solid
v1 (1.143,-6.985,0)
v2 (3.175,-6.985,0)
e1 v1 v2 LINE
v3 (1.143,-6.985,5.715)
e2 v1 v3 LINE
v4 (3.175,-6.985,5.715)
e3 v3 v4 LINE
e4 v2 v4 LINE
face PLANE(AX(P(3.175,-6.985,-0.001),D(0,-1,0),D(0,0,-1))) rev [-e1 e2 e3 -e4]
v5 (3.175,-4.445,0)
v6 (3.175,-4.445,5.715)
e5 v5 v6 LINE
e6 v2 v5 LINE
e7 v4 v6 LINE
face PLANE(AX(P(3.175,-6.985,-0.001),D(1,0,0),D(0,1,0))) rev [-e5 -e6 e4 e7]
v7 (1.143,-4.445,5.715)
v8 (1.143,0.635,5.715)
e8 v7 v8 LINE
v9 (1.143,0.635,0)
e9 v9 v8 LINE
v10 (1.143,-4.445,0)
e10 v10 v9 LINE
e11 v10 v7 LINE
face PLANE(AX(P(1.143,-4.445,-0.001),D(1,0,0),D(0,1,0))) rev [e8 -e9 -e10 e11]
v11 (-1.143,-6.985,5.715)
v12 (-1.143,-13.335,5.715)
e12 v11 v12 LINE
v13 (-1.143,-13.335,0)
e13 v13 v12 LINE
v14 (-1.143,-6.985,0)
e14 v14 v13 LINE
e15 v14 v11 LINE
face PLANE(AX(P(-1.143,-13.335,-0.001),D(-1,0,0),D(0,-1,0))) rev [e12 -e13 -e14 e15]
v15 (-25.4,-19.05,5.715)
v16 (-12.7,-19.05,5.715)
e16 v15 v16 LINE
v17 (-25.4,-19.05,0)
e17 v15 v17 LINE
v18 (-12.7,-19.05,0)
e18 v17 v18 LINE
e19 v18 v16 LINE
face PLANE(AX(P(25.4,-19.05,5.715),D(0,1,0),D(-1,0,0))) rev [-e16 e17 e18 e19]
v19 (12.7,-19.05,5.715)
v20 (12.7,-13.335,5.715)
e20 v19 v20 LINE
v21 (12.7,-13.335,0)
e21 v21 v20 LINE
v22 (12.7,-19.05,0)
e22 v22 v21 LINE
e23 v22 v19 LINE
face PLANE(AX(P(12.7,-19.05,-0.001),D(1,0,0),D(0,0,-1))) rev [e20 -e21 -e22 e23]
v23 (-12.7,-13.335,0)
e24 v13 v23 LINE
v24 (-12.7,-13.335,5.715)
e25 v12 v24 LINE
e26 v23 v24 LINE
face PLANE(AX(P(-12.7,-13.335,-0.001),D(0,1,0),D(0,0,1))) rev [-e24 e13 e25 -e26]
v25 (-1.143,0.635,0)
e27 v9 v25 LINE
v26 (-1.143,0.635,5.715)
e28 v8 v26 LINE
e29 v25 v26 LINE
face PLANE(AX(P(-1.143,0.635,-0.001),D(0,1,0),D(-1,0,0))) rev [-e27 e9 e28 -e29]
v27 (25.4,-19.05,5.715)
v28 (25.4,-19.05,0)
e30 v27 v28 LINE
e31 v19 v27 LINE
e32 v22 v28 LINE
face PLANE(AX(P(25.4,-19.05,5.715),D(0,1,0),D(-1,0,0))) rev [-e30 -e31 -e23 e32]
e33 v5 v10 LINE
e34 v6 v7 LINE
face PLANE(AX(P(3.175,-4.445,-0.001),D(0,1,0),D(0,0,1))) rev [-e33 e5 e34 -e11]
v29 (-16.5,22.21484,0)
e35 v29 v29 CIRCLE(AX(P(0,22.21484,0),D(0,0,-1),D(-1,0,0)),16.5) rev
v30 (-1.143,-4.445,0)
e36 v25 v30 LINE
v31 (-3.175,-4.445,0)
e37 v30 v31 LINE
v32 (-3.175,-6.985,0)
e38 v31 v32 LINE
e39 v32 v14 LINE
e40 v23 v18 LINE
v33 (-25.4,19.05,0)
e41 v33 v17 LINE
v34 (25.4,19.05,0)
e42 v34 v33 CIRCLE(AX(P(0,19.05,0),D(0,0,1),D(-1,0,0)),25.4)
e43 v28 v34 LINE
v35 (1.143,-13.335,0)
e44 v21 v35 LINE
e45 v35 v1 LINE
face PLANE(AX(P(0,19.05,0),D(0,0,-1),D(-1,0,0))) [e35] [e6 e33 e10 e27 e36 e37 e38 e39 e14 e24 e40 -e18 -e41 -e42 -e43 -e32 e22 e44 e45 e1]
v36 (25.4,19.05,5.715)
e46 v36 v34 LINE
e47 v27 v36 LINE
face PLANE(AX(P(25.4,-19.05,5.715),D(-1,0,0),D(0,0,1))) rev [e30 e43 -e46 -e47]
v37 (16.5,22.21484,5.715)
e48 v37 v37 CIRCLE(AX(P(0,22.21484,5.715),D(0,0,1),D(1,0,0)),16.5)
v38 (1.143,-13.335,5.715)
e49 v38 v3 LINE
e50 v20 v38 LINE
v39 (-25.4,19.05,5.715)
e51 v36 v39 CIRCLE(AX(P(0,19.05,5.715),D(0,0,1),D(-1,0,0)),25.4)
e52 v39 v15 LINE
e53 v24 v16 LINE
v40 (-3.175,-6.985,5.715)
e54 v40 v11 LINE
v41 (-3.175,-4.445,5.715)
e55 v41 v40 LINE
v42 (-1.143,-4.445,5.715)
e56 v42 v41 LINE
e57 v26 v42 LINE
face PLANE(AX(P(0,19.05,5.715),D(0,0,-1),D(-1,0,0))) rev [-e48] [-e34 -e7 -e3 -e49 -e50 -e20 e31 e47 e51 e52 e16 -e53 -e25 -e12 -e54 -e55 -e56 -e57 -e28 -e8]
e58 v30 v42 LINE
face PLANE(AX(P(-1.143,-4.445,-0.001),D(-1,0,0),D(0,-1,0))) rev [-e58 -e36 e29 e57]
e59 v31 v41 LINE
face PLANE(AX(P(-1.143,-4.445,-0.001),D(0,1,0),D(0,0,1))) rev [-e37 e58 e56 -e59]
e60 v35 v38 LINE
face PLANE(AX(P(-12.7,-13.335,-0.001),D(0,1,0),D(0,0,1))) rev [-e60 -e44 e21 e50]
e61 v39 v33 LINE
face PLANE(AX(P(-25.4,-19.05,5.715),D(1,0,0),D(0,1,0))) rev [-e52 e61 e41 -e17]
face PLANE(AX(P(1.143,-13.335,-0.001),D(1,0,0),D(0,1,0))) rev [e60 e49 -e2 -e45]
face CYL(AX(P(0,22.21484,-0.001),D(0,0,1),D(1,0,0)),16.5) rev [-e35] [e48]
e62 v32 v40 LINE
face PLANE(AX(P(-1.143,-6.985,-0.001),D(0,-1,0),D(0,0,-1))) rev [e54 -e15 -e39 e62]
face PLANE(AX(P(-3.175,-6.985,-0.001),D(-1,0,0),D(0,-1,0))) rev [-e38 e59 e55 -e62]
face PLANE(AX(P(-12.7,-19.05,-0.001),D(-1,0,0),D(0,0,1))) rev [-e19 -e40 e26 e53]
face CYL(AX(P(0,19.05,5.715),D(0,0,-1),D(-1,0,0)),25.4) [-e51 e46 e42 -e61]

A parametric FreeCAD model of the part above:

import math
import FreeCAD as App
import Part
import Sketcher
from FreeCAD import Vector
Q = App.Units.Quantity

doc = App.newDocument("Part")
params = doc.addObject("Spreadsheet::Sheet", "Params")
for row, (alias, value) in enumerate([
    ("sketch1_radius", "1 in"),
    ("sketch1_height", "1.5 in"),
    ("pad1_length", "0.225 in"),
    ("sketch3_width", "1 in"),
    ("sketch3_height", "0.225 in"),
    ("sketch4_height", "0.1 in"),
    ("sketch4_height2", "0.2 in"),
    ("sketch4_width", "0.08 in"),
    ("sketch4_width2", "0.09 in"),
    ("sketch4_height3", "0.25 in"),
], start=1):
    params.set(f"A{row}", alias)
    params.set(f"B{row}", "=" + value)
    params.setAlias(f"B{row}", alias)

body = doc.addObject("PartDesign::Body", "Body")

# Sketch on XY plane
sketch1 = body.newObject("Sketcher::SketchObject", "Sketch")
sketch1.AttachmentSupport = (doc.getObject("XY_Plane"), [""])
sketch1.MapMode = "FlatFace"
sketch1.addGeometry(Part.LineSegment(Vector(-25, -19, 0), Vector(25, -19, 0)), False)
sketch1.addGeometry(Part.LineSegment(Vector(25, -19, 0), Vector(25, 19, 0)), False)
sketch1.addGeometry(Part.ArcOfCircle(Part.Circle(Vector(0, 19, 0), Vector(0, 0, 1), 25), math.radians(0), math.radians(180)), False)
sketch1.addGeometry(Part.LineSegment(Vector(-25, 19, 0), Vector(-25, -19, 0)), False)
sketch1.addConstraint(Sketcher.Constraint("Coincident", 0, 2, 1, 1))
sketch1.addConstraint(Sketcher.Constraint("Tangent", 1, 2, 2, 1))
sketch1.addConstraint(Sketcher.Constraint("Tangent", 2, 2, 3, 1))
sketch1.addConstraint(Sketcher.Constraint("Coincident", 3, 2, 0, 1))
sketch1.addConstraint(Sketcher.Constraint("Horizontal", 0))
sketch1.addConstraint(Sketcher.Constraint("Vertical", 1))
sketch1.addConstraint(Sketcher.Constraint("Vertical", 3))
sketch1.addConstraint(Sketcher.Constraint("Symmetric", 0, 2, 2, 2, -1, 1))
sketch1.addConstraint(Sketcher.Constraint("Radius", 2, Q("1 in")))
sketch1.addConstraint(Sketcher.Constraint("DistanceY", 1, 1, 1, 2, Q("1.5 in")))
sketch1.setExpression("Constraints[8]", "Params.sketch1_radius")
sketch1.setExpression("Constraints[9]", "Params.sketch1_height")
pad1 = body.newObject("PartDesign::Pad", "Pad")
pad1.Profile = sketch1
pad1.setExpression("Length", "Params.pad1_length")

# Sketch on XY plane
sketch2 = body.newObject("Sketcher::SketchObject", "Sketch001")
sketch2.AttachmentSupport = (doc.getObject("XY_Plane"), [""])
sketch2.MapMode = "FlatFace"
sketch2.AttachmentOffset = App.Placement(Vector(0, 0, 0.225 * 25.4), App.Rotation())
sketch2.addGeometry(Part.Circle(Vector(0, 22, 0), Vector(0, 0, 1), 16), False)
sketch2.addConstraint(Sketcher.Constraint("PointOnObject", 0, 3, -2))
sketch2.addConstraint(Sketcher.Constraint("Diameter", 0, 33.0))
sketch2.addConstraint(Sketcher.Constraint("DistanceY", -1, 1, 0, 3, Q("0.8746 in")))
pocket1 = body.newObject("PartDesign::Pocket", "Pocket")
pocket1.Profile = sketch2
pocket1.Type = "UpToFirst"

# Sketch on XY plane
sketch3 = body.newObject("Sketcher::SketchObject", "Sketch002")
sketch3.AttachmentSupport = (doc.getObject("XY_Plane"), [""])
sketch3.MapMode = "FlatFace"
sketch3.AttachmentOffset = App.Placement(Vector(0, 0, 0.225 * 25.4), App.Rotation())
sketch3.addGeometry(Part.LineSegment(Vector(-13, -13, 0), Vector(-13, -19, 0)), False)
sketch3.addGeometry(Part.LineSegment(Vector(-13, -19, 0), Vector(13, -19, 0)), False)
sketch3.addGeometry(Part.LineSegment(Vector(13, -19, 0), Vector(13, -13, 0)), False)
sketch3.addGeometry(Part.LineSegment(Vector(13, -13, 0), Vector(-13, -13, 0)), False)
sketch3.addConstraint(Sketcher.Constraint("Coincident", 0, 2, 1, 1))
sketch3.addConstraint(Sketcher.Constraint("Coincident", 1, 2, 2, 1))
sketch3.addConstraint(Sketcher.Constraint("Coincident", 2, 2, 3, 1))
sketch3.addConstraint(Sketcher.Constraint("Coincident", 3, 2, 0, 1))
sketch3.addConstraint(Sketcher.Constraint("Vertical", 0))
sketch3.addConstraint(Sketcher.Constraint("Horizontal", 1))
sketch3.addConstraint(Sketcher.Constraint("Vertical", 2))
sketch3.addConstraint(Sketcher.Constraint("Horizontal", 3))
sketch3.addConstraint(Sketcher.Constraint("DistanceX", 1, 1, 1, 2, Q("1 in")))
sketch3.addConstraint(Sketcher.Constraint("DistanceX", 0, 2, -1, 1, Q("0.5 in")))
sketch3.addConstraint(Sketcher.Constraint("DistanceY", 0, 2, 0, 1, Q("0.225 in")))
sketch3.addConstraint(Sketcher.Constraint("DistanceY", 0, 2, -1, 1, Q("0.75 in")))
sketch3.setExpression("Constraints[8]", "Params.sketch3_width")
sketch3.setExpression("Constraints[10]", "Params.sketch3_height")
pocket2 = body.newObject("PartDesign::Pocket", "Pocket001")
pocket2.Profile = sketch3
pocket2.Type = "UpToFirst"

# Sketch on XY plane
sketch4 = body.newObject("Sketcher::SketchObject", "Sketch003")
sketch4.AttachmentSupport = (doc.getObject("XY_Plane"), [""])
sketch4.MapMode = "FlatFace"
sketch4.AttachmentOffset = App.Placement(Vector(0, 0, 0.225 * 25.4), App.Rotation())
sketch4.addGeometry(Part.LineSegment(Vector(1.1, -7, 0), Vector(3.2, -7, 0)), False)
sketch4.addGeometry(Part.LineSegment(Vector(3.2, -7, 0), Vector(3.2, -4.4, 0)), False)
sketch4.addGeometry(Part.LineSegment(Vector(3.2, -4.4, 0), Vector(1.1, -4.4, 0)), False)
sketch4.addGeometry(Part.LineSegment(Vector(1.1, -4.4, 0), Vector(1.1, 0.6, 0)), False)
sketch4.addGeometry(Part.LineSegment(Vector(1.1, 0.6, 0), Vector(-1.1, 0.6, 0)), False)
sketch4.addGeometry(Part.LineSegment(Vector(-1.1, 0.6, 0), Vector(-1.1, -4.4, 0)), False)
sketch4.addGeometry(Part.LineSegment(Vector(-1.1, -4.4, 0), Vector(-3.2, -4.4, 0)), False)
sketch4.addGeometry(Part.LineSegment(Vector(-3.2, -4.4, 0), Vector(-3.2, -7, 0)), False)
sketch4.addGeometry(Part.LineSegment(Vector(-3.2, -7, 0), Vector(-1.1, -7, 0)), False)
sketch4.addGeometry(Part.LineSegment(Vector(-1.1, -7, 0), Vector(-1.1, -13.3, 0)), False)
sketch4.addGeometry(Part.LineSegment(Vector(-1.1, -13.3, 0), Vector(1.1, -13.3, 0)), False)
sketch4.addGeometry(Part.LineSegment(Vector(1.1, -13.3, 0), Vector(1.1, -7, 0)), False)
sketch4.addConstraint(Sketcher.Constraint("Coincident", 0, 2, 1, 1))
sketch4.addConstraint(Sketcher.Constraint("Coincident", 1, 2, 2, 1))
sketch4.addConstraint(Sketcher.Constraint("Coincident", 2, 2, 3, 1))
sketch4.addConstraint(Sketcher.Constraint("Coincident", 3, 2, 4, 1))
sketch4.addConstraint(Sketcher.Constraint("Coincident", 4, 2, 5, 1))
sketch4.addConstraint(Sketcher.Constraint("Coincident", 5, 2, 6, 1))
sketch4.addConstraint(Sketcher.Constraint("Coincident", 6, 2, 7, 1))
sketch4.addConstraint(Sketcher.Constraint("Coincident", 7, 2, 8, 1))
sketch4.addConstraint(Sketcher.Constraint("Coincident", 8, 2, 9, 1))
sketch4.addConstraint(Sketcher.Constraint("Coincident", 9, 2, 10, 1))
sketch4.addConstraint(Sketcher.Constraint("Coincident", 10, 2, 11, 1))
sketch4.addConstraint(Sketcher.Constraint("Coincident", 11, 2, 0, 1))
sketch4.addConstraint(Sketcher.Constraint("Horizontal", 0))
sketch4.addConstraint(Sketcher.Constraint("Vertical", 1))
sketch4.addConstraint(Sketcher.Constraint("Horizontal", 2))
sketch4.addConstraint(Sketcher.Constraint("Vertical", 3))
sketch4.addConstraint(Sketcher.Constraint("Horizontal", 4))
sketch4.addConstraint(Sketcher.Constraint("Vertical", 5))
sketch4.addConstraint(Sketcher.Constraint("Horizontal", 6))
sketch4.addConstraint(Sketcher.Constraint("Vertical", 7))
sketch4.addConstraint(Sketcher.Constraint("Horizontal", 8))
sketch4.addConstraint(Sketcher.Constraint("Vertical", 9))
sketch4.addConstraint(Sketcher.Constraint("Horizontal", 10))
sketch4.addConstraint(Sketcher.Constraint("Vertical", 11))
sketch4.addConstraint(Sketcher.Constraint("Symmetric", 2, 2, 5, 2, -2))
sketch4.addConstraint(Sketcher.Constraint("Symmetric", 0, 2, 7, 2, -2))
sketch4.addConstraint(Sketcher.Constraint("Vertical", 5, 2, 8, 2))
sketch4.addConstraint(Sketcher.Constraint("Vertical", 3, 2, 10, 2))
sketch4.addConstraint(Sketcher.Constraint("DistanceY", 1, 1, 1, 2, Q("0.1 in")))
sketch4.addConstraint(Sketcher.Constraint("DistanceY", 3, 1, 3, 2, Q("0.2 in")))
sketch4.addConstraint(Sketcher.Constraint("DistanceX", 0, 1, 0, 2, Q("0.08 in")))
sketch4.addConstraint(Sketcher.Constraint("DistanceX", 4, 2, 4, 1, Q("0.09 in")))
sketch4.addConstraint(Sketcher.Constraint("DistanceY", 9, 2, 9, 1, Q("0.25 in")))
sketch4.addConstraint(Sketcher.Constraint("DistanceY", 0, 2, -1, 1, Q("0.275 in")))
sketch4.setExpression("Constraints[28]", "Params.sketch4_height")
sketch4.setExpression("Constraints[29]", "Params.sketch4_height2")
sketch4.setExpression("Constraints[30]", "Params.sketch4_width")
sketch4.setExpression("Constraints[31]", "Params.sketch4_width2")
sketch4.setExpression("Constraints[32]", "Params.sketch4_height3")
pocket3 = body.newObject("PartDesign::Pocket", "Pocket002")
pocket3.Profile = sketch4
pocket3.Type = "UpToFirst"

doc.recompute()
